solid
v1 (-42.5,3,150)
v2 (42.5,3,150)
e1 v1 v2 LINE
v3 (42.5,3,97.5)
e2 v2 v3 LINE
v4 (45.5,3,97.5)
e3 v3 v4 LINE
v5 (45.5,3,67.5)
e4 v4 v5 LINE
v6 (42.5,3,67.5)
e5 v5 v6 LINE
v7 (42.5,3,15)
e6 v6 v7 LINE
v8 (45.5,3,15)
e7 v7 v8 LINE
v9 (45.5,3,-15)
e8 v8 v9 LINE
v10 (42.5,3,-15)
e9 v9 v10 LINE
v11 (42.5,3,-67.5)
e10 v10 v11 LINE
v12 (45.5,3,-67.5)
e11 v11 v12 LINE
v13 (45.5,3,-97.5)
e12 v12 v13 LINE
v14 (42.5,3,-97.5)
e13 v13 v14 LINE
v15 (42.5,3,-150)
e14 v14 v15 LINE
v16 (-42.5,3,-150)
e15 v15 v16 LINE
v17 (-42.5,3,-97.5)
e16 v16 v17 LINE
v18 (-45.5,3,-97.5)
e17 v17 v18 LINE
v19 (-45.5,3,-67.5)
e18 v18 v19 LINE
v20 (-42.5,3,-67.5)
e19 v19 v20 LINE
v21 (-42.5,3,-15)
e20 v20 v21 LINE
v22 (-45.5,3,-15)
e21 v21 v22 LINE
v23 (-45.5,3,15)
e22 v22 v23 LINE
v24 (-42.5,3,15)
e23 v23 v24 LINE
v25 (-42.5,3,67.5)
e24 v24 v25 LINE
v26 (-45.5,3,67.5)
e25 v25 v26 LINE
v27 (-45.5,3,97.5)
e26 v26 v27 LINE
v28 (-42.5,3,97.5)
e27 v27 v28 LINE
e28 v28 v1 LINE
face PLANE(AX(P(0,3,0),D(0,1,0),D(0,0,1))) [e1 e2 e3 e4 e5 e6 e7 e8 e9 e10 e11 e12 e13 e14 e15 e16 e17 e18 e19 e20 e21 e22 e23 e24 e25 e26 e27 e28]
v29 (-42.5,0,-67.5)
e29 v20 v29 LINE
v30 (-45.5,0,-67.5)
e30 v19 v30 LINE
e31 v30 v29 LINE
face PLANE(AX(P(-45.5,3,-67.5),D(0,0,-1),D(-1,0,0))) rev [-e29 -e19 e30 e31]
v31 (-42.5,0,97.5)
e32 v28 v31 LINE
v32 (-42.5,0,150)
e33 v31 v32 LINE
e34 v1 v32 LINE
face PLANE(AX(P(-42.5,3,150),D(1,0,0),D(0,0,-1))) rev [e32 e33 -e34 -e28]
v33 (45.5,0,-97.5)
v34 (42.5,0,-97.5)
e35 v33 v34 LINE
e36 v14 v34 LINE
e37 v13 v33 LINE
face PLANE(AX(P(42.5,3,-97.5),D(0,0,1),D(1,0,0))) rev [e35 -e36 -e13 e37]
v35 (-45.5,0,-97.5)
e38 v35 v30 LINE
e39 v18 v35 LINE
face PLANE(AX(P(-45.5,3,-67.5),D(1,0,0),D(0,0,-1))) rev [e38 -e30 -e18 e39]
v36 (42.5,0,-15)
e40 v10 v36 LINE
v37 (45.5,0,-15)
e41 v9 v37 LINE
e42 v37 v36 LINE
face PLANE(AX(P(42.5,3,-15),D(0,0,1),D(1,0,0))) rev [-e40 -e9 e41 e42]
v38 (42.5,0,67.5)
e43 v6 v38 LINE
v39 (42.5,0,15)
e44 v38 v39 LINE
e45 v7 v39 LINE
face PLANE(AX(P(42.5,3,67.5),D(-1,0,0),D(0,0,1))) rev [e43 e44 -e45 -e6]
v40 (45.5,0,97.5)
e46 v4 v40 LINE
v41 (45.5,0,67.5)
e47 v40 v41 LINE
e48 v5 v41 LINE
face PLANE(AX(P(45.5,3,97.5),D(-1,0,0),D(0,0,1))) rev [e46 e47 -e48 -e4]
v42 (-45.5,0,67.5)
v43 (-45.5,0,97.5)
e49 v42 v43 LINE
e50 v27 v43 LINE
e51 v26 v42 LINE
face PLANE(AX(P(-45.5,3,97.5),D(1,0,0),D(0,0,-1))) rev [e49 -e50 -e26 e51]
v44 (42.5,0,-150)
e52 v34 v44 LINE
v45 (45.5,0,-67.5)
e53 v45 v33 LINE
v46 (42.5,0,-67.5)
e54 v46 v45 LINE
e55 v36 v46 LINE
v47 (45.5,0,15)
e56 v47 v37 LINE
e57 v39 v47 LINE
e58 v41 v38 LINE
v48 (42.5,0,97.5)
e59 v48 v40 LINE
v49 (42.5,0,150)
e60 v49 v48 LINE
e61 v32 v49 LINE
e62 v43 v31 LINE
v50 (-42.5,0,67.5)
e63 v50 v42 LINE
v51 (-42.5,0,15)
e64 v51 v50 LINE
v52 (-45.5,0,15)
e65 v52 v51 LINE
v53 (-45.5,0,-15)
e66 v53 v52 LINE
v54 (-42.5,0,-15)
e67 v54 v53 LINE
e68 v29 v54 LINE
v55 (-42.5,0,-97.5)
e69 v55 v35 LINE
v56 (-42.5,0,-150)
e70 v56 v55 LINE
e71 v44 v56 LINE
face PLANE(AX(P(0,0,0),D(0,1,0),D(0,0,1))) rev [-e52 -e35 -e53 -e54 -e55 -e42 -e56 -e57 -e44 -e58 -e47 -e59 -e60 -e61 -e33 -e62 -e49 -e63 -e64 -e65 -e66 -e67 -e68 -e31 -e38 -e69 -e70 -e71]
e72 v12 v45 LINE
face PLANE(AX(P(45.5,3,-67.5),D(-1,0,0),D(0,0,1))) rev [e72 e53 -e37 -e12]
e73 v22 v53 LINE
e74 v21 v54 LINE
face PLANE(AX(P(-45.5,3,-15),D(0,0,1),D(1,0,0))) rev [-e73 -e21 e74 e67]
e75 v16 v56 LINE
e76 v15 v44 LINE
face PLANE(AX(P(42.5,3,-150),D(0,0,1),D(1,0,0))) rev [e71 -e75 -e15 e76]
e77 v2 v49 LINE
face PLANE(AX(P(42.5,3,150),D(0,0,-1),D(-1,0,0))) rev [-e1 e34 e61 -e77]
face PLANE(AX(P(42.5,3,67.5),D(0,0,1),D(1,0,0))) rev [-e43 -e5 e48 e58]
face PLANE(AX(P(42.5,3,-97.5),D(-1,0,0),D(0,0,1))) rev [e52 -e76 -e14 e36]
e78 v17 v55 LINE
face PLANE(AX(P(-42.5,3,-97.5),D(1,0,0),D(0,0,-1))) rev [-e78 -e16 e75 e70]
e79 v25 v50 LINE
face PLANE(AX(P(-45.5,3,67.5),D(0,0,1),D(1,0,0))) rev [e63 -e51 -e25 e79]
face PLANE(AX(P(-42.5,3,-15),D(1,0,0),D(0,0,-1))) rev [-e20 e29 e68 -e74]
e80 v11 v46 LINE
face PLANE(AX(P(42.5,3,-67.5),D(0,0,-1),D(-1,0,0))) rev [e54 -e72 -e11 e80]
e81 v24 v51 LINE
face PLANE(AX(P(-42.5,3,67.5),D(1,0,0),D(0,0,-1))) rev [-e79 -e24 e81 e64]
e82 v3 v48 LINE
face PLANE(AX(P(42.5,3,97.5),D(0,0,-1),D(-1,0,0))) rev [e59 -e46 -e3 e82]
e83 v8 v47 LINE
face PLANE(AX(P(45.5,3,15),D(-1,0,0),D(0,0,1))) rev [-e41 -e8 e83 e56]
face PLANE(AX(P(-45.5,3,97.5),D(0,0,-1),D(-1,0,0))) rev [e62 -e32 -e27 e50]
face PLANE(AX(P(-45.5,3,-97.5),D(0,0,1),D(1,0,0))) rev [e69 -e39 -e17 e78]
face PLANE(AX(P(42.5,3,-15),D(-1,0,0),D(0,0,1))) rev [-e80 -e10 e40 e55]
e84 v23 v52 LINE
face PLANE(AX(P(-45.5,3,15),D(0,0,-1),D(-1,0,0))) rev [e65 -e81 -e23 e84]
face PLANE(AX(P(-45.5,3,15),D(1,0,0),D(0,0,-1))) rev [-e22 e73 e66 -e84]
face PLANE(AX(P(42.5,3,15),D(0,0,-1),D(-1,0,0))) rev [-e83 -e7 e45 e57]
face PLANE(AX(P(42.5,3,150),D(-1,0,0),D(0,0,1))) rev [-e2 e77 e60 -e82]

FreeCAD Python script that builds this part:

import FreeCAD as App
import Part
import Sketcher
from FreeCAD import Vector
Q = App.Units.Quantity

doc = App.newDocument("Part")
params = doc.addObject("Spreadsheet::Sheet", "Params")
for row, (alias, value) in enumerate([
    ("sketch1_width", "3 mm"),
    ("sketch1_width2", "85 mm"),
    ("sketch1_height", "30 mm"),
    ("sketch1_height2", "52.5 mm"),
    ("pad1_length", "3 mm"),
], start=1):
    params.set(f"A{row}", alias)
    params.set(f"B{row}", "=" + value)
    params.setAlias(f"B{row}", alias)

body = doc.addObject("PartDesign::Body", "Body")

sketch1 = body.newObject("Sketcher::SketchObject", "Sketch")
sketch1.AttachmentSupport = (doc.getObject("XZ_Plane"), [""])
sketch1.MapMode = "FlatFace"
sketch1.addGeometry([
    Part.LineSegment(Vector(-45.5, -67.5, 0), Vector(-42.5, -67.5, 0)),
    Part.LineSegment(Vector(-42.5, -67.5, 0), Vector(-42.5, -15, 0)),
    Part.LineSegment(Vector(-42.5, -15, 0), Vector(-45.5, -15, 0)),
    Part.LineSegment(Vector(-45.5, -15, 0), Vector(-45.5, 15, 0)),
    Part.LineSegment(Vector(-45.5, 15, 0), Vector(-42.5, 15, 0)),
    Part.LineSegment(Vector(-42.5, 15, 0), Vector(-42.5, 67.5, 0)),
    Part.LineSegment(Vector(-42.5, 67.5, 0), Vector(-45.5, 67.5, 0)),
    Part.LineSegment(Vector(-45.5, 67.5, 0), Vector(-45.5, 97.5, 0)),
    Part.LineSegment(Vector(-45.5, 97.5, 0), Vector(-42.5, 97.5, 0)),
    Part.LineSegment(Vector(-42.5, 97.5, 0), Vector(-42.5, 150, 0)),
    Part.LineSegment(Vector(-42.5, 150, 0), Vector(42.5, 150, 0)),
    Part.LineSegment(Vector(42.5, 150, 0), Vector(42.5, 97.5, 0)),
    Part.LineSegment(Vector(42.5, 97.5, 0), Vector(45.5, 97.5, 0)),
    Part.LineSegment(Vector(45.5, 97.5, 0), Vector(45.5, 67.5, 0)),
    Part.LineSegment(Vector(45.5, 67.5, 0), Vector(42.5, 67.5, 0)),
    Part.LineSegment(Vector(42.5, 67.5, 0), Vector(42.5, 15, 0)),
    Part.LineSegment(Vector(42.5, 15, 0), Vector(45.5, 15, 0)),
    Part.LineSegment(Vector(45.5, 15, 0), Vector(45.5, -15, 0)),
    Part.LineSegment(Vector(45.5, -15, 0), Vector(42.5, -15, 0)),
    Part.LineSegment(Vector(42.5, -15, 0), Vector(42.5, -67.5, 0)),
    Part.LineSegment(Vector(42.5, -67.5, 0), Vector(45.5, -67.5, 0)),
    Part.LineSegment(Vector(45.5, -67.5, 0), Vector(45.5, -97.5, 0)),
    Part.LineSegment(Vector(45.5, -97.5, 0), Vector(42.5, -97.5, 0)),
    Part.LineSegment(Vector(42.5, -97.5, 0), Vector(42.5, -150, 0)),
    Part.LineSegment(Vector(42.5, -150, 0), Vector(-42.5, -150, 0)),
    Part.LineSegment(Vector(-42.5, -150, 0), Vector(-42.5, -97.5, 0)),
    Part.LineSegment(Vector(-42.5, -97.5, 0), Vector(-45.5, -97.5, 0)),
    Part.LineSegment(Vector(-45.5, -97.5, 0), Vector(-45.5, -67.5, 0)),
], False)
sketch1.addConstraint([
    Sketcher.Constraint("Coincident", 0, 2, 1, 1),
    Sketcher.Constraint("Coincident", 1, 2, 2, 1),
    Sketcher.Constraint("Coincident", 2, 2, 3, 1),
    Sketcher.Constraint("Coincident", 3, 2, 4, 1),
    Sketcher.Constraint("Coincident", 4, 2, 5, 1),
    Sketcher.Constraint("Coincident", 5, 2, 6, 1),
    Sketcher.Constraint("Coincident", 6, 2, 7, 1),
    Sketcher.Constraint("Coincident", 7, 2, 8, 1),
    Sketcher.Constraint("Coincident", 8, 2, 9, 1),
    Sketcher.Constraint("Coincident", 9, 2, 10, 1),
    Sketcher.Constraint("Coincident", 10, 2, 11, 1),
    Sketcher.Constraint("Coincident", 11, 2, 12, 1),
    Sketcher.Constraint("Coincident", 12, 2, 13, 1),
    Sketcher.Constraint("Coincident", 13, 2, 14, 1),
    Sketcher.Constraint("Coincident", 14, 2, 15, 1),
    Sketcher.Constraint("Coincident", 15, 2, 16, 1),
    Sketcher.Constraint("Coincident", 16, 2, 17, 1),
    Sketcher.Constraint("Coincident", 17, 2, 18, 1),
    Sketcher.Constraint("Coincident", 18, 2, 19, 1),
    Sketcher.Constraint("Coincident", 19, 2, 20, 1),
    Sketcher.Constraint("Coincident", 20, 2, 21, 1),
    Sketcher.Constraint("Coincident", 21, 2, 22, 1),
    Sketcher.Constraint("Coincident", 22, 2, 23, 1),
    Sketcher.Constraint("Coincident", 23, 2, 24, 1),
    Sketcher.Constraint("Coincident", 24, 2, 25, 1),
    Sketcher.Constraint("Coincident", 25, 2, 26, 1),
    Sketcher.Constraint("Coincident", 26, 2, 27, 1),
    Sketcher.Constraint("Coincident", 27, 2, 0, 1),
    Sketcher.Constraint("Horizontal", 0),
    Sketcher.Constraint("Vertical", 1),
    Sketcher.Constraint("Horizontal", 2),
    Sketcher.Constraint("Vertical", 3),
    Sketcher.Constraint("Horizontal", 4),
    Sketcher.Constraint("Vertical", 5),
    Sketcher.Constraint("Horizontal", 6),
    Sketcher.Constraint("Vertical", 7),
    Sketcher.Constraint("Horizontal", 8),
    Sketcher.Constraint("Vertical", 9),
    Sketcher.Constraint("Horizontal", 10),
    Sketcher.Constraint("Vertical", 11),
    Sketcher.Constraint("Horizontal", 12),
    Sketcher.Constraint("Vertical", 13),
    Sketcher.Constraint("Horizontal", 14),
    Sketcher.Constraint("Vertical", 15),
    Sketcher.Constraint("Horizontal", 16),
    Sketcher.Constraint("Vertical", 17),
    Sketcher.Constraint("Horizontal", 18),
    Sketcher.Constraint("Vertical", 19),
    Sketcher.Constraint("Horizontal", 20),
    Sketcher.Constraint("Vertical", 21),
    Sketcher.Constraint("Horizontal", 22),
    Sketcher.Constraint("Vertical", 23),
    Sketcher.Constraint("Horizontal", 24),
    Sketcher.Constraint("Vertical", 25),
    Sketcher.Constraint("Horizontal", 26),
    Sketcher.Constraint("Vertical", 27),
    Sketcher.Constraint("Symmetric", 0, 2, 14, 2, -1, 1),
    Sketcher.Constraint("Symmetric", 2, 2, 16, 2, -1, 1),
    Sketcher.Constraint("Symmetric", 4, 2, 18, 2, -1, 1),
    Sketcher.Constraint("Symmetric", 6, 2, 20, 2, -1, 1),
    Sketcher.Constraint("Symmetric", 8, 2, 22, 2, -1, 1),
    Sketcher.Constraint("Symmetric", 10, 2, 24, 2, -1, 1),
    Sketcher.Constraint("Symmetric", 12, 2, 26, 2, -1, 1),
    Sketcher.Constraint("Symmetric", 8, 2, 11, 2, -2),
    Sketcher.Constraint("Symmetric", 6, 2, 13, 2, -2),
    Sketcher.Constraint("Symmetric", 4, 2, 15, 2, -2),
    Sketcher.Constraint("Vertical", 3, 2, 6, 2),
    Sketcher.Constraint("Vertical", 5, 2, 8, 2),
    Sketcher.Constraint("Equal", 3, 7),
    Sketcher.Constraint("Equal", 5, 9),
    Sketcher.Constraint("DistanceX", 0, 1, 0, 2, Q("3 mm")),
    Sketcher.Constraint("DistanceX", 10, 1, 10, 2, Q("85 mm")),
    Sketcher.Constraint("DistanceY", 3, 1, 3, 2, Q("30 mm")),
    Sketcher.Constraint("DistanceY", 1, 1, 1, 2, Q("52.5 mm")),
])
sketch1.setExpression("Constraints[70]", "Params.sketch1_width")
sketch1.setExpression("Constraints[71]", "Params.sketch1_width2")
sketch1.setExpression("Constraints[72]", "Params.sketch1_height")
sketch1.setExpression("Constraints[73]", "Params.sketch1_height2")
pad1 = body.newObject("PartDesign::Pad", "Pad")
pad1.Profile = sketch1
pad1.setExpression("Length", "Params.pad1_length")
pad1.Reversed = True

doc.recompute()
